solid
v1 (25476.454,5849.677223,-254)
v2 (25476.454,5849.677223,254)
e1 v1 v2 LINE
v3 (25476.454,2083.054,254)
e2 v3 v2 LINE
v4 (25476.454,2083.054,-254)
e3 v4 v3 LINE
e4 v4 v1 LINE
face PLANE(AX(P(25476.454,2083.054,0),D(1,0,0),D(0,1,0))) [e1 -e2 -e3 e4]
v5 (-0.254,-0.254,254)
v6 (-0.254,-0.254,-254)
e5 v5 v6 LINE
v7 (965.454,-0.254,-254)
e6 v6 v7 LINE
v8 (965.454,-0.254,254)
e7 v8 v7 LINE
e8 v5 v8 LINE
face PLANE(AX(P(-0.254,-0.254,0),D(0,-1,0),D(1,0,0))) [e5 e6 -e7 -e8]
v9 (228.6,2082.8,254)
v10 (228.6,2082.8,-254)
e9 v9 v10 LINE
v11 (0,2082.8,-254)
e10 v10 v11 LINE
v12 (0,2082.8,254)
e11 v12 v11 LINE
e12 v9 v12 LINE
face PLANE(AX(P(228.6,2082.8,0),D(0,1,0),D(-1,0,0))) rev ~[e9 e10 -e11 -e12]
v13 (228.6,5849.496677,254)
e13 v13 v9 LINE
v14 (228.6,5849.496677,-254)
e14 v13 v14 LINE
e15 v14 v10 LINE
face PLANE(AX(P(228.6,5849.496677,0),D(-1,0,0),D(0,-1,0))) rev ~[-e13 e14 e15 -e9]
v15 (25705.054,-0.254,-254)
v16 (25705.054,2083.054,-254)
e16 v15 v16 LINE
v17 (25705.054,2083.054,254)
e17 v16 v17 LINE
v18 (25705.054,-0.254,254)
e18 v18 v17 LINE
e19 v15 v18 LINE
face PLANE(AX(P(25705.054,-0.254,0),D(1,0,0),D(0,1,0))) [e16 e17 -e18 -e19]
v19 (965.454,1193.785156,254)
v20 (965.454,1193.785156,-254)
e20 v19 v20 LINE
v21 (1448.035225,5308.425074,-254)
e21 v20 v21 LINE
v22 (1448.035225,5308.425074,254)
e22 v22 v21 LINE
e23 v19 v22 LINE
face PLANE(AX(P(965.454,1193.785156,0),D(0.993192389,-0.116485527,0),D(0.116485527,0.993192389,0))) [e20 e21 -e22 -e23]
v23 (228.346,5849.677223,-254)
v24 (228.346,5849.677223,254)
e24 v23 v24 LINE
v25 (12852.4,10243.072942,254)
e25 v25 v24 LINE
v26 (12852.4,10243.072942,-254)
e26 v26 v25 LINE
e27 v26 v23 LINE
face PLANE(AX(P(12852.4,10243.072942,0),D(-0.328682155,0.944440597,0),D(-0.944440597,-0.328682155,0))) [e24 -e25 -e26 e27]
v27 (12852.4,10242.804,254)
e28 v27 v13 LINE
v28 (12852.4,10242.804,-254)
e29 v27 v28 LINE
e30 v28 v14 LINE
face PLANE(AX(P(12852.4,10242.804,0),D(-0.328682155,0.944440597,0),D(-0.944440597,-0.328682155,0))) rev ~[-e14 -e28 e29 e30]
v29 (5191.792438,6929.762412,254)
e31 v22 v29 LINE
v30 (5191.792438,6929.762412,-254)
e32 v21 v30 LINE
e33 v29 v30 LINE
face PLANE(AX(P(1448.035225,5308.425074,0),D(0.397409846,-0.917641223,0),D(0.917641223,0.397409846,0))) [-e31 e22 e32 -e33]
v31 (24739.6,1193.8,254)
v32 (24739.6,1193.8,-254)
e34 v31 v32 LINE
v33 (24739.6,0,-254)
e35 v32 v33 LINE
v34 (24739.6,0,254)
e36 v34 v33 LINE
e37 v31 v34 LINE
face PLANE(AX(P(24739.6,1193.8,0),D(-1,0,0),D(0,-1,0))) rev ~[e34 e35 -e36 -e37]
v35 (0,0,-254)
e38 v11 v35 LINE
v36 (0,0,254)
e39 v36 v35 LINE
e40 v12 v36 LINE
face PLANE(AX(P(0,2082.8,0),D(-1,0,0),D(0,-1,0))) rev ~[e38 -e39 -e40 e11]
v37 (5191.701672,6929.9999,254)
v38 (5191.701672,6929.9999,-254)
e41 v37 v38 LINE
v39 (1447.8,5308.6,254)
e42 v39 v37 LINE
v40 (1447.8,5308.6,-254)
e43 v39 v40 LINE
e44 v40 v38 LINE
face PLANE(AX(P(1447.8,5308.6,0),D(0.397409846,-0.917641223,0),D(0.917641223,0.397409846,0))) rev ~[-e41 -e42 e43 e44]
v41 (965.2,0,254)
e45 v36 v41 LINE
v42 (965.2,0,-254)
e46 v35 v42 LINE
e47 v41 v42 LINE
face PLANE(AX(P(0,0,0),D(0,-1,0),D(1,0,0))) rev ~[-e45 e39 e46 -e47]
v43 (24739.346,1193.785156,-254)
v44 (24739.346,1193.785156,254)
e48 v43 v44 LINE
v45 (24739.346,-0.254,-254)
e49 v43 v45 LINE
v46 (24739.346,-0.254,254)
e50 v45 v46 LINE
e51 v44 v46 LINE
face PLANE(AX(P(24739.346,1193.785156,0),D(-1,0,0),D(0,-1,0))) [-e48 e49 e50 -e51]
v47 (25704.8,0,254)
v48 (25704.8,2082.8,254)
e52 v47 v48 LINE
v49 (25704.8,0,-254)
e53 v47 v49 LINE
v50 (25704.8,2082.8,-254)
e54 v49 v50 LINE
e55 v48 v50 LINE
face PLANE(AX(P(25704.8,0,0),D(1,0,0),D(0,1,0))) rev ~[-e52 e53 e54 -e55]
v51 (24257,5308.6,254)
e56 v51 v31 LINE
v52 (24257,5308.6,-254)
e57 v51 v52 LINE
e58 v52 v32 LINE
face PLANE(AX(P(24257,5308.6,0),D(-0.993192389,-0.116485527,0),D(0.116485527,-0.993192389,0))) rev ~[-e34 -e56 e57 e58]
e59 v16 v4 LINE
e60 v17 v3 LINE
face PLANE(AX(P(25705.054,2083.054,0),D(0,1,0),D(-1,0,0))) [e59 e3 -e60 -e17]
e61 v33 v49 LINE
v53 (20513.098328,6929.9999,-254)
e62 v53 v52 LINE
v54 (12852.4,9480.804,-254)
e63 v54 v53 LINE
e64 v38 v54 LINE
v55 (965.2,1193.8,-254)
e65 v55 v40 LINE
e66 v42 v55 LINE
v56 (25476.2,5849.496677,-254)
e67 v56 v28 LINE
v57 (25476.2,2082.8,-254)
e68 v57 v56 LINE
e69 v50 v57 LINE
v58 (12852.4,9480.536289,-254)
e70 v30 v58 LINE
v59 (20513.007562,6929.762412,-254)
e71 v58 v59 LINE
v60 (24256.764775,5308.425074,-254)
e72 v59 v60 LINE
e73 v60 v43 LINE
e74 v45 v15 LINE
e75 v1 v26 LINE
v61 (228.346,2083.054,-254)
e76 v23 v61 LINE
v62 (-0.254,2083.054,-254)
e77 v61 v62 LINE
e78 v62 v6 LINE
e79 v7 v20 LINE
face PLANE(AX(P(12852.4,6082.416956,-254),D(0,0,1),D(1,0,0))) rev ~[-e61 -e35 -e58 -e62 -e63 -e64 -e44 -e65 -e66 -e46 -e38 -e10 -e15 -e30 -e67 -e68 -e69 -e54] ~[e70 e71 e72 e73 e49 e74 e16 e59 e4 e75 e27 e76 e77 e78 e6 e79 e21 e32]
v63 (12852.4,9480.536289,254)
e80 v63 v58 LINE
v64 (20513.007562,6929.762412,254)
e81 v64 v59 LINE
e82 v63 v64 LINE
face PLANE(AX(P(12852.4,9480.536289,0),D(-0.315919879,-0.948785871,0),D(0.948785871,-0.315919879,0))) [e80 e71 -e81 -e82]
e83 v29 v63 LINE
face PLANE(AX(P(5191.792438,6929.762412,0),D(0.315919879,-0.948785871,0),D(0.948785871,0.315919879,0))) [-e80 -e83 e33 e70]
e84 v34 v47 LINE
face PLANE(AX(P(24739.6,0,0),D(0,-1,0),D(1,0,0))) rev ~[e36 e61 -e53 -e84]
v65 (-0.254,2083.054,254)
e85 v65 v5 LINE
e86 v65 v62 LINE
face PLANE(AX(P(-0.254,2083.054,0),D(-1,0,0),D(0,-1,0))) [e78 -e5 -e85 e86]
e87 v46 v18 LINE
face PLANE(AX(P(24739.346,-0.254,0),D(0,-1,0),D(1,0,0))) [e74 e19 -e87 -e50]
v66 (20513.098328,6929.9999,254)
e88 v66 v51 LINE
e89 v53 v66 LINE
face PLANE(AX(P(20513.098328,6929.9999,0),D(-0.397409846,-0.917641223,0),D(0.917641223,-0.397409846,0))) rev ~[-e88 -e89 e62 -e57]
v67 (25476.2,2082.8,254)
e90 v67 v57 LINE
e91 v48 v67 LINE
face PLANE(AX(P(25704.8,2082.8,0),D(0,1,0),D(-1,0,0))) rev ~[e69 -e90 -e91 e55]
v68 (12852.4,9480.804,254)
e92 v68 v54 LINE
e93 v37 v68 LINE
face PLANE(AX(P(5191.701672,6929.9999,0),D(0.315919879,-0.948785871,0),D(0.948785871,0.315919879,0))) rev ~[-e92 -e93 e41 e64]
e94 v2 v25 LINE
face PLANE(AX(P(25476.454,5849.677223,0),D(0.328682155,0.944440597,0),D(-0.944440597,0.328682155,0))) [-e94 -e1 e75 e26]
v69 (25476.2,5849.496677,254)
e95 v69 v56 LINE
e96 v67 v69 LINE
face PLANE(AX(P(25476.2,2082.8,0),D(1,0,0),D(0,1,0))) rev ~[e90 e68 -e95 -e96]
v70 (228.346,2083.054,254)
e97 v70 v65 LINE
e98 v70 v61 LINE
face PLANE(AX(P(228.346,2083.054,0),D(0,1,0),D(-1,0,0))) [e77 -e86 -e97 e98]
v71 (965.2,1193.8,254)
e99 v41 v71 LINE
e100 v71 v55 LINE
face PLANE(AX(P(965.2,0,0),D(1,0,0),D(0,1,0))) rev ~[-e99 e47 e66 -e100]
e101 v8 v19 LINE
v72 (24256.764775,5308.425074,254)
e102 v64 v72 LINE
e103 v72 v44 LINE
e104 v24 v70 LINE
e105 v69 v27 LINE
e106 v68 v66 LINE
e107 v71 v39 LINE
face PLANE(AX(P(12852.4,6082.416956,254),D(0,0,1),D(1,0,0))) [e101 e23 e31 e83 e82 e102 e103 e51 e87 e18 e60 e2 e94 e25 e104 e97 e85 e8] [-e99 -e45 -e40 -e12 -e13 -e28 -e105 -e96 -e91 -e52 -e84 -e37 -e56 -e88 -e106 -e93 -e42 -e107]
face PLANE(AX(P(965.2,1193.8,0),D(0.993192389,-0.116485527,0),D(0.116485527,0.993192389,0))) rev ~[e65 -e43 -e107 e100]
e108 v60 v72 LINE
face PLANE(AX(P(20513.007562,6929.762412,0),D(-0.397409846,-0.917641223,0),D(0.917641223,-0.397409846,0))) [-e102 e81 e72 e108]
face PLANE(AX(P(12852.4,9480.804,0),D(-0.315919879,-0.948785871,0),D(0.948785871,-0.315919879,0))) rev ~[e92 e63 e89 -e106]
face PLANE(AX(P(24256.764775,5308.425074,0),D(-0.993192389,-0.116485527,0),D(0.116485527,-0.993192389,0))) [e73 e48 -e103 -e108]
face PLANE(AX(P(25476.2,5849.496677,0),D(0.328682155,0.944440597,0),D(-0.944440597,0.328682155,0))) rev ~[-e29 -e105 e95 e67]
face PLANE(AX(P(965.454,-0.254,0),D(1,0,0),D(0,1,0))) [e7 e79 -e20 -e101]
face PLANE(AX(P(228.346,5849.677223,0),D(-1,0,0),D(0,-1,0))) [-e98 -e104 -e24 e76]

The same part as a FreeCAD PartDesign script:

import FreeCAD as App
import Part
import Sketcher
Q = App.Units.Quantity

doc = App.newDocument("Part")
body = doc.addObject("PartDesign::Body", "Body")

sketch1 = body.newObject("Sketcher::SketchObject", "Sketch")
sketch1.AttachmentSupport = (doc.getObject("XY_Plane"), [""])
sketch1.MapMode = "FlatFace"
sketch1.addGeometry(Part.LineSegment(App.Vector(20513.007562, 6929.762412, 0), App.Vector(24256.764775, 5308.425074, 0)), False)
sketch1.addGeometry(Part.LineSegment(App.Vector(24256.764775, 5308.425074, 0), App.Vector(24739.346, 1193.785156, 0)), False)
sketch1.addGeometry(Part.LineSegment(App.Vector(24739.346, 1193.785156, 0), App.Vector(24739.346, -0.254, 0)), False)
sketch1.addGeometry(Part.LineSegment(App.Vector(24739.346, -0.254, 0), App.Vector(25705.054, -0.254, 0)), False)
sketch1.addGeometry(Part.LineSegment(App.Vector(25705.054, -0.254, 0), App.Vector(25705.054, 2083.054, 0)), False)
sketch1.addGeometry(Part.LineSegment(App.Vector(25705.054, 2083.054, 0), App.Vector(25476.454, 2083.054, 0)), False)
sketch1.addGeometry(Part.LineSegment(App.Vector(25476.454, 2083.054, 0), App.Vector(25476.454, 5849.677223, 0)), False)
sketch1.addGeometry(Part.LineSegment(App.Vector(25476.454, 5849.677223, 0), App.Vector(12852.4, 10243.072942, 0)), False)
sketch1.addGeometry(Part.LineSegment(App.Vector(12852.4, 10243.072942, 0), App.Vector(228.346, 5849.677223, 0)), False)
sketch1.addGeometry(Part.LineSegment(App.Vector(228.346, 5849.677223, 0), App.Vector(228.346, 2083.054, 0)), False)
sketch1.addGeometry(Part.LineSegment(App.Vector(228.346, 2083.054, 0), App.Vector(-0.254, 2083.054, 0)), False)
sketch1.addGeometry(Part.LineSegment(App.Vector(-0.254, 2083.054, 0), App.Vector(-0.254, -0.254, 0)), False)
sketch1.addGeometry(Part.LineSegment(App.Vector(-0.254, -0.254, 0), App.Vector(965.454, -0.254, 0)), False)
sketch1.addGeometry(Part.LineSegment(App.Vector(965.454, -0.254, 0), App.Vector(965.454, 1193.785156, 0)), False)
sketch1.addGeometry(Part.LineSegment(App.Vector(965.454, 1193.785156, 0), App.Vector(1448.035225, 5308.425074, 0)), False)
sketch1.addGeometry(Part.LineSegment(App.Vector(1448.035225, 5308.425074, 0), App.Vector(5191.792438, 6929.762412, 0)), False)
sketch1.addGeometry(Part.LineSegment(App.Vector(5191.792438, 6929.762412, 0), App.Vector(12852.4, 9480.536289, 0)), False)
sketch1.addGeometry(Part.LineSegment(App.Vector(12852.4, 9480.536289, 0), App.Vector(20513.007562, 6929.762412, 0)), False)
sketch1.addGeometry(Part.LineSegment(App.Vector(24257, 5308.6, 0), App.Vector(20513.098328, 6929.9999, 0)), False)
sketch1.addGeometry(Part.LineSegment(App.Vector(20513.098328, 6929.9999, 0), App.Vector(12852.4, 9480.804, 0)), False)
sketch1.addGeometry(Part.LineSegment(App.Vector(12852.4, 9480.804, 0), App.Vector(5191.701672, 6929.9999, 0)), False)
sketch1.addGeometry(Part.LineSegment(App.Vector(5191.701672, 6929.9999, 0), App.Vector(1447.8, 5308.6, 0)), False)
sketch1.addGeometry(Part.LineSegment(App.Vector(1447.8, 5308.6, 0), App.Vector(965.2, 1193.8, 0)), False)
sketch1.addGeometry(Part.LineSegment(App.Vector(965.2, 1193.8, 0), App.Vector(965.2, 0, 0)), False)
sketch1.addGeometry(Part.LineSegment(App.Vector(965.2, 0, 0), App.Vector(0, 0, 0)), False)
sketch1.addGeometry(Part.LineSegment(App.Vector(0, 0, 0), App.Vector(0, 2082.8, 0)), False)
sketch1.addGeometry(Part.LineSegment(App.Vector(0, 2082.8, 0), App.Vector(228.6, 2082.8, 0)), False)
sketch1.addGeometry(Part.LineSegment(App.Vector(228.6, 2082.8, 0), App.Vector(228.6, 5849.496677, 0)), False)
sketch1.addGeometry(Part.LineSegment(App.Vector(228.6, 5849.496677, 0), App.Vector(12852.4, 10242.804, 0)), False)
sketch1.addGeometry(Part.LineSegment(App.Vector(12852.4, 10242.804, 0), App.Vector(25476.2, 5849.496677, 0)), False)
sketch1.addGeometry(Part.LineSegment(App.Vector(25476.2, 5849.496677, 0), App.Vector(25476.2, 2082.8, 0)), False)
sketch1.addGeometry(Part.LineSegment(App.Vector(25476.2, 2082.8, 0), App.Vector(25704.8, 2082.8, 0)), False)
sketch1.addGeometry(Part.LineSegment(App.Vector(25704.8, 2082.8, 0), App.Vector(25704.8, 0, 0)), False)
sketch1.addGeometry(Part.LineSegment(App.Vector(25704.8, 0, 0), App.Vector(24739.6, 0, 0)), False)
sketch1.addGeometry(Part.LineSegment(App.Vector(24739.6, 0, 0), App.Vector(24739.6, 1193.8, 0)), False)
sketch1.addGeometry(Part.LineSegment(App.Vector(24739.6, 1193.8, 0), App.Vector(24257, 5308.6, 0)), False)
sketch1.addConstraint(Sketcher.Constraint("Coincident", 0, 2, 1, 1))
sketch1.addConstraint(Sketcher.Constraint("Coincident", 1, 2, 2, 1))
sketch1.addConstraint(Sketcher.Constraint("Coincident", 2, 2, 3, 1))
sketch1.addConstraint(Sketcher.Constraint("Coincident", 3, 2, 4, 1))
sketch1.addConstraint(Sketcher.Constraint("Coincident", 4, 2, 5, 1))
sketch1.addConstraint(Sketcher.Constraint("Coincident", 5, 2, 6, 1))
sketch1.addConstraint(Sketcher.Constraint("Coincident", 6, 2, 7, 1))
sketch1.addConstraint(Sketcher.Constraint("Coincident", 7, 2, 8, 1))
sketch1.addConstraint(Sketcher.Constraint("Coincident", 8, 2, 9, 1))
sketch1.addConstraint(Sketcher.Constraint("Coincident", 9, 2, 10, 1))
sketch1.addConstraint(Sketcher.Constraint("Coincident", 10, 2, 11, 1))
sketch1.addConstraint(Sketcher.Constraint("Coincident", 11, 2, 12, 1))
sketch1.addConstraint(Sketcher.Constraint("Coincident", 12, 2, 13, 1))
sketch1.addConstraint(Sketcher.Constraint("Coincident", 13, 2, 14, 1))
sketch1.addConstraint(Sketcher.Constraint("Coincident", 14, 2, 15, 1))
sketch1.addConstraint(Sketcher.Constraint("Coincident", 15, 2, 16, 1))
sketch1.addConstraint(Sketcher.Constraint("Coincident", 16, 2, 17, 1))
sketch1.addConstraint(Sketcher.Constraint("Coincident", 17, 2, 0, 1))
sketch1.addConstraint(Sketcher.Constraint("Coincident", 18, 2, 19, 1))
sketch1.addConstraint(Sketcher.Constraint("Coincident", 19, 2, 20, 1))
sketch1.addConstraint(Sketcher.Constraint("Coincident", 20, 2, 21, 1))
sketch1.addConstraint(Sketcher.Constraint("Coincident", 21, 2, 22, 1))
sketch1.addConstraint(Sketcher.Constraint("Coincident", 22, 2, 23, 1))
sketch1.addConstraint(Sketcher.Constraint("Coincident", 23, 2, 24, 1))
sketch1.addConstraint(Sketcher.Constraint("Coincident", 24, 2, 25, 1))
sketch1.addConstraint(Sketcher.Constraint("Coincident", 25, 2, 26, 1))
sketch1.addConstraint(Sketcher.Constraint("Coincident", 26, 2, 27, 1))
sketch1.addConstraint(Sketcher.Constraint("Coincident", 27, 2, 28, 1))
sketch1.addConstraint(Sketcher.Constraint("Coincident", 28, 2, 29, 1))
sketch1.addConstraint(Sketcher.Constraint("Coincident", 29, 2, 30, 1))
sketch1.addConstraint(Sketcher.Constraint("Coincident", 30, 2, 31, 1))
sketch1.addConstraint(Sketcher.Constraint("Coincident", 31, 2, 32, 1))
sketch1.addConstraint(Sketcher.Constraint("Coincident", 32, 2, 33, 1))
sketch1.addConstraint(Sketcher.Constraint("Coincident", 33, 2, 34, 1))
sketch1.addConstraint(Sketcher.Constraint("Coincident", 34, 2, 35, 1))
sketch1.addConstraint(Sketcher.Constraint("Coincident", 35, 2, 18, 1))
sketch1.addConstraint(Sketcher.Constraint("Vertical", 2))
sketch1.addConstraint(Sketcher.Constraint("Horizontal", 3))
sketch1.addConstraint(Sketcher.Constraint("Vertical", 4))
sketch1.addConstraint(Sketcher.Constraint("Horizontal", 5))
sketch1.addConstraint(Sketcher.Constraint("Vertical", 6))
sketch1.addConstraint(Sketcher.Constraint("Vertical", 9))
sketch1.addConstraint(Sketcher.Constraint("Horizontal", 10))
sketch1.addConstraint(Sketcher.Constraint("Vertical", 11))
sketch1.addConstraint(Sketcher.Constraint("Horizontal", 12))
sketch1.addConstraint(Sketcher.Constraint("Vertical", 13))
sketch1.addConstraint(Sketcher.Constraint("Vertical", 23))
sketch1.addConstraint(Sketcher.Constraint("Horizontal", 24))
sketch1.addConstraint(Sketcher.Constraint("Vertical", 25))
sketch1.addConstraint(Sketcher.Constraint("Horizontal", 26))
sketch1.addConstraint(Sketcher.Constraint("Vertical", 27))
sketch1.addConstraint(Sketcher.Constraint("Vertical", 30))
sketch1.addConstraint(Sketcher.Constraint("Horizontal", 31))
sketch1.addConstraint(Sketcher.Constraint("Vertical", 32))
sketch1.addConstraint(Sketcher.Constraint("Horizontal", 33))
sketch1.addConstraint(Sketcher.Constraint("Vertical", 34))
sketch1.addConstraint(Sketcher.Constraint("Coincident", 24, 2, -1, 1))
sketch1.addConstraint(Sketcher.Constraint("PointOnObject", 32, 2, -1))
sketch1.addConstraint(Sketcher.Constraint("Parallel", 0, 18))
sketch1.addConstraint(Sketcher.Constraint("Parallel", 17, 19))
sketch1.addConstraint(Sketcher.Constraint("Parallel", 16, 20))
sketch1.addConstraint(Sketcher.Constraint("Parallel", 15, 21))
sketch1.addConstraint(Sketcher.Constraint("Parallel", 14, 22))
sketch1.addConstraint(Sketcher.Constraint("Parallel", 8, 28))
sketch1.addConstraint(Sketcher.Constraint("Parallel", 7, 29))
sketch1.addConstraint(Sketcher.Constraint("Parallel", 1, 35))
sketch1.addConstraint(Sketcher.Constraint("Horizontal", 6, 2, 8, 2))
sketch1.addConstraint(Sketcher.Constraint("Horizontal", 5, 2, 9, 2))
sketch1.addConstraint(Sketcher.Constraint("Horizontal", 3, 2, 11, 2))
sketch1.addConstraint(Sketcher.Constraint("Horizontal", 1, 2, 13, 2))
sketch1.addConstraint(Sketcher.Constraint("Horizontal", 0, 2, 14, 2))
sketch1.addConstraint(Sketcher.Constraint("Horizontal", 15, 2, 17, 2))
sketch1.addConstraint(Sketcher.Constraint("Horizontal", 18, 2, 20, 2))
sketch1.addConstraint(Sketcher.Constraint("Horizontal", 27, 2, 29, 2))
sketch1.addConstraint(Sketcher.Constraint("Horizontal", 26, 2, 30, 2))
sketch1.addConstraint(Sketcher.Constraint("Horizontal", 22, 2, 34, 2))
sketch1.addConstraint(Sketcher.Constraint("Horizontal", 21, 2, 35, 2))
sketch1.addConstraint(Sketcher.Constraint("Vertical", 7, 2, 16, 2))
sketch1.addConstraint(Sketcher.Constraint("Vertical", 16, 2, 19, 2))
sketch1.addConstraint(Sketcher.Constraint("Vertical", 19, 2, 28, 2))
sketch1.addConstraint(Sketcher.Constraint("Equal", 5, 10))
sketch1.addConstraint(Sketcher.Constraint("Equal", 3, 12))
sketch1.addConstraint(Sketcher.Constraint("Equal", 10, 26))
sketch1.addConstraint(Sketcher.Constraint("Equal", 26, 31))
sketch1.addConstraint(Sketcher.Constraint("Equal", 7, 8))
sketch1.addConstraint(Sketcher.Constraint("Equal", 1, 14))
sketch1.addConstraint(Sketcher.Constraint("Equal", 0, 15))
sketch1.addConstraint(Sketcher.Constraint("DistanceX", 5, 2, 5, 1, Q("9 in")))
sketch1.addConstraint(Sketcher.Constraint("DistanceX", 24, 2, 24, 1, Q("38 in")))
sketch1.addConstraint(Sketcher.Constraint("DistanceY", 23, 2, 23, 1, Q("47 in")))
sketch1.addConstraint(Sketcher.Constraint("DistanceY", 25, 1, 25, 2, Q("82 in")))
sketch1.addConstraint(Sketcher.Constraint("DistanceX", -1, 1, 7, 2, Q("506 in")))
sketch1.addConstraint(Sketcher.Constraint("DistanceX", -1, 1, 21, 2, Q("57 in")))
sketch1.addConstraint(Sketcher.Constraint("DistanceY", -1, 1, 21, 2, Q("209 in")))
sketch1.addConstraint(Sketcher.Constraint("DistanceX", 8, 2, 1, 2, Q("965 in")))
sketch1.addConstraint(Sketcher.Constraint("DistanceY", 19, 2, 28, 2, Q("30 in")))
sketch1.addConstraint(Sketcher.Constraint("DistanceX", 3, 1, 3, 2, Q("38.02 in")))
sketch1.addConstraint(Sketcher.Constraint("DistanceY", 4, 1, 4, 2, Q("82.02 in")))
sketch1.addConstraint(Sketcher.Constraint("DistanceY", 2, 2, -1, 1, Q("0.01 in")))
sketch1.addConstraint(Sketcher.Constraint("DistanceY", -1, 1, 19, 2, Q("373.26 in")))
sketch1.addConstraint(Sketcher.Constraint("DistanceY", -1, 1, 18, 2, 6929.9999))
sketch1.addConstraint(Sketcher.Constraint("Distance", 0, 4079.761369))
sketch1.addConstraint(Sketcher.Constraint("Distance", 1, 4142.842779))
sketch1.addConstraint(Sketcher.Constraint("DistanceY", 2, 2, 2, 1, 1194.039156))
sketch1.addConstraint(Sketcher.Constraint("DistanceY", 6, 1, 6, 2, 3766.623223))
sketch1.addConstraint(Sketcher.Constraint("DistanceY", 27, 1, 27, 2, 3766.696677))
sketch1.addConstraint(Sketcher.Constraint("DistanceY", -1, 1, 15, 2, 6929.762412))
pad1 = body.newObject("PartDesign::Pad", "Pad")
pad1.Profile = sketch1
pad1.Length = Q("20 in")
pad1.Midplane = True

doc.recompute()
